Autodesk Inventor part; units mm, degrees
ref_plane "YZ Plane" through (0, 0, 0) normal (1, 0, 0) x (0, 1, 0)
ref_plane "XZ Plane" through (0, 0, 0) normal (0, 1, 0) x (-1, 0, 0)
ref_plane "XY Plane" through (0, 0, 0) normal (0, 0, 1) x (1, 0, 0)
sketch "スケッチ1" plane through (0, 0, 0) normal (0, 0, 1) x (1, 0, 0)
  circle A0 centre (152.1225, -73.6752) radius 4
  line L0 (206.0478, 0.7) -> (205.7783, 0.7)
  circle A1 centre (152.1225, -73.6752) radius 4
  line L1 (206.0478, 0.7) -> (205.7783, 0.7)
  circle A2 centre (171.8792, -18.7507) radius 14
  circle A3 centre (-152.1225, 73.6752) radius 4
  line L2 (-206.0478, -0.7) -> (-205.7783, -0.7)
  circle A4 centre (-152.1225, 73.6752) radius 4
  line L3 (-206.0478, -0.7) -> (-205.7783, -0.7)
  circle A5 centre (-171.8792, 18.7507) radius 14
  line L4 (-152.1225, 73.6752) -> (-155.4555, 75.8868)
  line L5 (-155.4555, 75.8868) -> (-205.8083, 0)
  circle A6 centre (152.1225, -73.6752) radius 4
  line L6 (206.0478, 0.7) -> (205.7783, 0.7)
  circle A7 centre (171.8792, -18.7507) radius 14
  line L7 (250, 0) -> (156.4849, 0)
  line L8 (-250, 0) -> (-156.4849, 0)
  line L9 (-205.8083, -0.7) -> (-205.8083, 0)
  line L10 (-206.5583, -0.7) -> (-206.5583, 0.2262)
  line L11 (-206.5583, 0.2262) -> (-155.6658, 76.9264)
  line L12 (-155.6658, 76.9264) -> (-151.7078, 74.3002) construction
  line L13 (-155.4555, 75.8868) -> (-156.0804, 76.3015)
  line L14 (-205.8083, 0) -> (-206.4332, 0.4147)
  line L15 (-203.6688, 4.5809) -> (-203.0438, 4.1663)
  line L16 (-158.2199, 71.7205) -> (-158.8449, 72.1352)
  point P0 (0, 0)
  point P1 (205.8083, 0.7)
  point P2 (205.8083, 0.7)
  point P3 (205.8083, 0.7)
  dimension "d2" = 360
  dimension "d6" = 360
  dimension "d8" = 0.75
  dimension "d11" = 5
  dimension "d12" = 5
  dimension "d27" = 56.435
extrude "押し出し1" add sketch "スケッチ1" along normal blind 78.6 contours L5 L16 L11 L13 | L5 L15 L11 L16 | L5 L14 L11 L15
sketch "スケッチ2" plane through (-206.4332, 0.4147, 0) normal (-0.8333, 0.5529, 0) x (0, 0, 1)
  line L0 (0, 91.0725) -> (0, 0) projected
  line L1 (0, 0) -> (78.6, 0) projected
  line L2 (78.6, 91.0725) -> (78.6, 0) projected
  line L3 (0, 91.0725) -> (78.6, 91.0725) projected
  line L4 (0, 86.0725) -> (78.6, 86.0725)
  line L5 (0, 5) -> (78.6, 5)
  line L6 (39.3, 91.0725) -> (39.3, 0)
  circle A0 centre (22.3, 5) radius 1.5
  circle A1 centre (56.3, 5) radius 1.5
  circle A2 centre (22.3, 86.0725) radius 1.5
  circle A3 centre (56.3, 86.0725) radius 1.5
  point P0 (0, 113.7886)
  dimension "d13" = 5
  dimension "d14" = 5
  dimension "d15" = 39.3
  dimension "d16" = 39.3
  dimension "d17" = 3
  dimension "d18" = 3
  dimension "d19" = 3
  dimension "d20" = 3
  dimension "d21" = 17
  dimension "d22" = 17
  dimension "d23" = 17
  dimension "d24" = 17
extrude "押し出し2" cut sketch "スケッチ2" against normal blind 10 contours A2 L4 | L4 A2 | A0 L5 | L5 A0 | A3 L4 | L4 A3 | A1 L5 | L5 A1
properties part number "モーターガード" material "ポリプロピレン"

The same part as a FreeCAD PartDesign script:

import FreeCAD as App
import Part
import Sketcher
from FreeCAD import Vector


def add_polygon(sketch, points):
    """Adds a closed chain of lines whose ends are joined by coincident constraints."""
    first, n = sketch.GeometryCount, len(points)
    for a, b in zip(points, points[1:] + points[:1]):
        sketch.addGeometry(Part.LineSegment(App.Vector(*a, 0), App.Vector(*b, 0)), False)
    for i in range(n):
        sketch.addConstraint(Sketcher.Constraint("Coincident", first + i, 2, first + (i + 1) % n, 1))

doc = App.newDocument("Part")
body = doc.addObject("PartDesign::Body", "Body")

sketch1 = body.newObject("Sketcher::SketchObject", "Sketch")
sketch1.AttachmentSupport = (doc.getObject("XY_Plane"), [""])
sketch1.MapMode = "FlatFace"
add_polygon(sketch1, [(-155.4555, 75.8868), (-156.0804, 76.3015), (-206.4332, 0.4147), (-205.8083, 0)])
sketch1.addConstraint([
    Sketcher.Constraint("PointOnObject", 2, 2, -1),
    Sketcher.Constraint("Distance", 0, 0.75),
    Sketcher.Constraint("Distance", 2, 0.75),
    Sketcher.Constraint("DistanceX", 1, 2, 2, 2, 0.625),
    Sketcher.Constraint("DistanceX", 2, 2, 0, 2, 49.728),
    Sketcher.Constraint("DistanceX", 0, 2, 3, 2, 0.625),
    Sketcher.Constraint("DistanceY", 1, 2, 3, 2, 75.472),
    Sketcher.Constraint("DistanceX", 0, 2, -1, 1, 156.0804),
])
pad1 = body.newObject("PartDesign::Pad", "Pad")
pad1.Profile = sketch1
pad1.Length = 78.6

sketch2 = body.newObject("Sketcher::SketchObject", "Sketch001")
sketch2.Placement = App.Placement(Vector(-206.4332, 0.4147, 0), App.Rotation(Vector(0, 0, 1), Vector(0.552875867, 0.833263629, 0), Vector(-0.833263629, 0.552875867, 0), "ZXY"))
sketch2.addGeometry([
    Part.Circle(Vector(22.3, 86.1, 0), Vector(0, 0, 1), 1.5),
    Part.Circle(Vector(22.3, 5, 0), Vector(0, 0, 1), 1.5),
    Part.Circle(Vector(56.3, 86.1, 0), Vector(0, 0, 1), 1.5),
    Part.Circle(Vector(56.3, 5, 0), Vector(0, 0, 1), 1.5),
], False)
sketch2.addConstraint([
    Sketcher.Constraint("Equal", 0, 1),
    Sketcher.Constraint("Equal", 1, 2),
    Sketcher.Constraint("Equal", 2, 3),
    Sketcher.Constraint("Horizontal", 0, 3, 2, 3),
    Sketcher.Constraint("Horizontal", 1, 3, 3, 3),
    Sketcher.Constraint("Vertical", 0, 3, 1, 3),
    Sketcher.Constraint("Vertical", 2, 3, 3, 3),
    Sketcher.Constraint("Diameter", 0, 3.0),
    Sketcher.Constraint("DistanceY", -1, 1, 1, 3, 5.0),
    Sketcher.Constraint("DistanceX", 0, 3, 2, 3, 34.0),
    Sketcher.Constraint("DistanceX", -1, 1, 0, 3, 22.3),
    Sketcher.Constraint("DistanceY", -1, 1, 0, 3, 86.0725),
])
pocket1 = body.newObject("PartDesign::Pocket", "Pocket")
pocket1.Profile = sketch2
pocket1.Length = 10

doc.recompute()
